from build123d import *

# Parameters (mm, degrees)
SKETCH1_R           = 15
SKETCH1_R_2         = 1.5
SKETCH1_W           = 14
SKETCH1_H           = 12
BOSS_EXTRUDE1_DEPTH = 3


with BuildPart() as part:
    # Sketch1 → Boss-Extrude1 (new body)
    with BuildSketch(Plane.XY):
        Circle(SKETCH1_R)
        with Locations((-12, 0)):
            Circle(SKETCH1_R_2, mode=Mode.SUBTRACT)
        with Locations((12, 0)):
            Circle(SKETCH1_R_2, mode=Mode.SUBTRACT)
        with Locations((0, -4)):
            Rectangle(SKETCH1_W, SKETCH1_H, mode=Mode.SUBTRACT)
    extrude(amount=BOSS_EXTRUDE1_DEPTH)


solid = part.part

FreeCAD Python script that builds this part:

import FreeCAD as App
import Part
import Sketcher


def add_polygon(sketch, points):
    """Adds a closed chain of lines whose ends are joined by coincident constraints."""
    first, n = sketch.GeometryCount, len(points)
    for a, b in zip(points, points[1:] + points[:1]):
        sketch.addGeometry(Part.LineSegment(App.Vector(*a, 0), App.Vector(*b, 0)), False)
    for i in range(n):
        sketch.addConstraint(Sketcher.Constraint("Coincident", first + i, 2, first + (i + 1) % n, 1))

doc = App.newDocument("Part")
body = doc.addObject("PartDesign::Body", "Body")

# Sketch on XY plane
sketch1 = doc.addObject("Sketcher::SketchObject", "Sketch")
body.addObject(sketch1)
sketch1.AttachmentSupport = (doc.XY_Plane, [""])
sketch1.MapMode = "FlatFace"
sketch1.addGeometry(Part.Circle(App.Vector(0, 0, 0), App.Vector(0, 0, 1), 15), False)  # 0
sketch1.addGeometry(Part.Circle(App.Vector(-12, 0, 0), App.Vector(0, 0, 1), 1.5), False)  # 1
add_polygon(sketch1, [(7, -10), (-7, -10), (-7, 2), (7, 2)])  # lines 2-5
sketch1.addGeometry(Part.Circle(App.Vector(12, 0, 0), App.Vector(0, 0, 1), 1.5), False)  # 6
sketch1.addConstraint([
    Sketcher.Constraint("Horizontal", 2),
    Sketcher.Constraint("Vertical", 3),
    Sketcher.Constraint("Horizontal", 4),
    Sketcher.Constraint("Vertical", 5),
    Sketcher.Constraint("Coincident", 0, 3, -1, 1),
    Sketcher.Constraint("Equal", 1, 6),
    Sketcher.Constraint("Symmetric", 1, 3, 6, 3, -1, 1),
    Sketcher.Constraint("PointOnObject", 1, 3, -1),
    Sketcher.Constraint("Diameter", 0, 30.0),
    Sketcher.Constraint("Diameter", 1, 3.0),
    Sketcher.Constraint("DistanceX", 2, 2, 2, 1, 14.0),
    Sketcher.Constraint("DistanceY", 3, 1, 3, 2, 12.0),
    Sketcher.Constraint("DistanceX", 1, 3, -1, 1, 12.0),
    Sketcher.Constraint("DistanceX", 2, 2, -1, 1, 7.0),
    Sketcher.Constraint("DistanceY", 2, 2, -1, 1, 10.0),
])
pad1 = doc.addObject("PartDesign::Pad", "Pad")
body.addObject(pad1)
pad1.Profile = sketch1
pad1.Length = 3

doc.recompute()
